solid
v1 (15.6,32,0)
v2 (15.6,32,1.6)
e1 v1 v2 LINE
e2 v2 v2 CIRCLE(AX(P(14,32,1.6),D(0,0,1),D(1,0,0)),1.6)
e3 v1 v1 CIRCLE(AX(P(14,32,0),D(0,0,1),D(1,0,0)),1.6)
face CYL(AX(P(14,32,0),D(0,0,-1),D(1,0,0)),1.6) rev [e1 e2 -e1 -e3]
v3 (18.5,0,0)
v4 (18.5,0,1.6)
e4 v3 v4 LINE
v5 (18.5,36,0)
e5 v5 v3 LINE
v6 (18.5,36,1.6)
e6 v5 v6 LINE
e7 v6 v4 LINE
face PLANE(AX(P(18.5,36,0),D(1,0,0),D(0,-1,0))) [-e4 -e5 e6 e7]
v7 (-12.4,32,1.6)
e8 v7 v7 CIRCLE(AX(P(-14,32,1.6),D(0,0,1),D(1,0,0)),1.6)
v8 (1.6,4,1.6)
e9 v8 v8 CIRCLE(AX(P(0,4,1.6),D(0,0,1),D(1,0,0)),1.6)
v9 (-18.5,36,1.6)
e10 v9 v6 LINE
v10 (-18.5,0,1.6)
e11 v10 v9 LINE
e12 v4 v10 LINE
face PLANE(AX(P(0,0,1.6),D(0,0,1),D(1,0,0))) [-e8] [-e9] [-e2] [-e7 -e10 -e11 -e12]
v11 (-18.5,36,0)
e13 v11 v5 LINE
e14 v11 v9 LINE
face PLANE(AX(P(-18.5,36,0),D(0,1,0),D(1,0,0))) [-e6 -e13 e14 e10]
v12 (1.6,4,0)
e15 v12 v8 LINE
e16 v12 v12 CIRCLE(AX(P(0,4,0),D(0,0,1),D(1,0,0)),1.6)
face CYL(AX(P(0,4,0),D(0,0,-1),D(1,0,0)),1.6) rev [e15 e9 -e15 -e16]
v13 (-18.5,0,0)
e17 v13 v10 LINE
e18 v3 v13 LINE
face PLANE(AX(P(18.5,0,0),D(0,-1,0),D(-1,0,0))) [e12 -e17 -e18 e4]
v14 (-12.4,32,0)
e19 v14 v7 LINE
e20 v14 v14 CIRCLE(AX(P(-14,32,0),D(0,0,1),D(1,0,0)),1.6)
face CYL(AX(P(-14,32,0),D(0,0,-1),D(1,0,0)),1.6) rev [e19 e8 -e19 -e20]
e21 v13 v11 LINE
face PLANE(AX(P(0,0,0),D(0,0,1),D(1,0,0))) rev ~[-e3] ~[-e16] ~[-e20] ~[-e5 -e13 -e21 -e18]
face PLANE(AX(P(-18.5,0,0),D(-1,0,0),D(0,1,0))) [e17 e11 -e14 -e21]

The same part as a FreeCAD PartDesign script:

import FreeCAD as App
import Part
import Sketcher
Q = App.Units.Quantity

doc = App.newDocument("Part")
body = doc.addObject("PartDesign::Body", "Body")

# Sketch on XY plane
sketch1 = body.newObject("Sketcher::SketchObject", "Sketch")
sketch1.AttachmentSupport = (doc.getObject("XY_Plane"), [""])
sketch1.MapMode = "FlatFace"
sketch1.addGeometry([
    Part.LineSegment(App.Vector(18.5, 36, 0), App.Vector(-18.5, 36, 0)),  # 0
    Part.LineSegment(App.Vector(-18.5, 36, 0), App.Vector(-18.5, 0, 0)),  # 1
    Part.LineSegment(App.Vector(-18.5, 0, 0), App.Vector(18.5, 0, 0)),  # 2
    Part.LineSegment(App.Vector(18.5, 0, 0), App.Vector(18.5, 36, 0)),  # 3
    Part.Circle(App.Vector(0, 4, 0), App.Vector(0, 0, 1), 1.6),  # 4
    Part.Circle(App.Vector(-14, 32, 0), App.Vector(0, 0, 1), 1.6),  # 5
    Part.Circle(App.Vector(14, 32, 0), App.Vector(0, 0, 1), 1.6),  # 6
], False)
sketch1.addConstraint([
    Sketcher.Constraint("Coincident", 0, 2, 1, 1),
    Sketcher.Constraint("Coincident", 1, 2, 2, 1),
    Sketcher.Constraint("Coincident", 2, 2, 3, 1),
    Sketcher.Constraint("Coincident", 3, 2, 0, 1),
    Sketcher.Constraint("Horizontal", 0),
    Sketcher.Constraint("Vertical", 1),
    Sketcher.Constraint("Horizontal", 2),
    Sketcher.Constraint("Vertical", 3),
    Sketcher.Constraint("Equal", 4, 5),
    Sketcher.Constraint("Equal", 5, 6),
    Sketcher.Constraint("Symmetric", 1, 2, 2, 2, -1, 1),
    Sketcher.Constraint("Symmetric", 5, 3, 6, 3, -2),
    Sketcher.Constraint("PointOnObject", 4, 3, -2),
    Sketcher.Constraint("Diameter", 4, Q("3.2 mm")),
    Sketcher.Constraint("DistanceX", 0, 2, 0, 1, Q("37 mm")),
    Sketcher.Constraint("DistanceY", 1, 2, 1, 1, Q("36 mm")),
    Sketcher.Constraint("DistanceY", -1, 1, 4, 3, Q("4 mm")),
    Sketcher.Constraint("DistanceY", 5, 3, 0, 2, Q("4 mm")),
    Sketcher.Constraint("DistanceX", 0, 2, 5, 3, Q("4.5 mm")),
])
pad1 = body.newObject("PartDesign::Pad", "Pad")
pad1.Profile = sketch1
pad1.Length = 1.6

doc.recompute()
